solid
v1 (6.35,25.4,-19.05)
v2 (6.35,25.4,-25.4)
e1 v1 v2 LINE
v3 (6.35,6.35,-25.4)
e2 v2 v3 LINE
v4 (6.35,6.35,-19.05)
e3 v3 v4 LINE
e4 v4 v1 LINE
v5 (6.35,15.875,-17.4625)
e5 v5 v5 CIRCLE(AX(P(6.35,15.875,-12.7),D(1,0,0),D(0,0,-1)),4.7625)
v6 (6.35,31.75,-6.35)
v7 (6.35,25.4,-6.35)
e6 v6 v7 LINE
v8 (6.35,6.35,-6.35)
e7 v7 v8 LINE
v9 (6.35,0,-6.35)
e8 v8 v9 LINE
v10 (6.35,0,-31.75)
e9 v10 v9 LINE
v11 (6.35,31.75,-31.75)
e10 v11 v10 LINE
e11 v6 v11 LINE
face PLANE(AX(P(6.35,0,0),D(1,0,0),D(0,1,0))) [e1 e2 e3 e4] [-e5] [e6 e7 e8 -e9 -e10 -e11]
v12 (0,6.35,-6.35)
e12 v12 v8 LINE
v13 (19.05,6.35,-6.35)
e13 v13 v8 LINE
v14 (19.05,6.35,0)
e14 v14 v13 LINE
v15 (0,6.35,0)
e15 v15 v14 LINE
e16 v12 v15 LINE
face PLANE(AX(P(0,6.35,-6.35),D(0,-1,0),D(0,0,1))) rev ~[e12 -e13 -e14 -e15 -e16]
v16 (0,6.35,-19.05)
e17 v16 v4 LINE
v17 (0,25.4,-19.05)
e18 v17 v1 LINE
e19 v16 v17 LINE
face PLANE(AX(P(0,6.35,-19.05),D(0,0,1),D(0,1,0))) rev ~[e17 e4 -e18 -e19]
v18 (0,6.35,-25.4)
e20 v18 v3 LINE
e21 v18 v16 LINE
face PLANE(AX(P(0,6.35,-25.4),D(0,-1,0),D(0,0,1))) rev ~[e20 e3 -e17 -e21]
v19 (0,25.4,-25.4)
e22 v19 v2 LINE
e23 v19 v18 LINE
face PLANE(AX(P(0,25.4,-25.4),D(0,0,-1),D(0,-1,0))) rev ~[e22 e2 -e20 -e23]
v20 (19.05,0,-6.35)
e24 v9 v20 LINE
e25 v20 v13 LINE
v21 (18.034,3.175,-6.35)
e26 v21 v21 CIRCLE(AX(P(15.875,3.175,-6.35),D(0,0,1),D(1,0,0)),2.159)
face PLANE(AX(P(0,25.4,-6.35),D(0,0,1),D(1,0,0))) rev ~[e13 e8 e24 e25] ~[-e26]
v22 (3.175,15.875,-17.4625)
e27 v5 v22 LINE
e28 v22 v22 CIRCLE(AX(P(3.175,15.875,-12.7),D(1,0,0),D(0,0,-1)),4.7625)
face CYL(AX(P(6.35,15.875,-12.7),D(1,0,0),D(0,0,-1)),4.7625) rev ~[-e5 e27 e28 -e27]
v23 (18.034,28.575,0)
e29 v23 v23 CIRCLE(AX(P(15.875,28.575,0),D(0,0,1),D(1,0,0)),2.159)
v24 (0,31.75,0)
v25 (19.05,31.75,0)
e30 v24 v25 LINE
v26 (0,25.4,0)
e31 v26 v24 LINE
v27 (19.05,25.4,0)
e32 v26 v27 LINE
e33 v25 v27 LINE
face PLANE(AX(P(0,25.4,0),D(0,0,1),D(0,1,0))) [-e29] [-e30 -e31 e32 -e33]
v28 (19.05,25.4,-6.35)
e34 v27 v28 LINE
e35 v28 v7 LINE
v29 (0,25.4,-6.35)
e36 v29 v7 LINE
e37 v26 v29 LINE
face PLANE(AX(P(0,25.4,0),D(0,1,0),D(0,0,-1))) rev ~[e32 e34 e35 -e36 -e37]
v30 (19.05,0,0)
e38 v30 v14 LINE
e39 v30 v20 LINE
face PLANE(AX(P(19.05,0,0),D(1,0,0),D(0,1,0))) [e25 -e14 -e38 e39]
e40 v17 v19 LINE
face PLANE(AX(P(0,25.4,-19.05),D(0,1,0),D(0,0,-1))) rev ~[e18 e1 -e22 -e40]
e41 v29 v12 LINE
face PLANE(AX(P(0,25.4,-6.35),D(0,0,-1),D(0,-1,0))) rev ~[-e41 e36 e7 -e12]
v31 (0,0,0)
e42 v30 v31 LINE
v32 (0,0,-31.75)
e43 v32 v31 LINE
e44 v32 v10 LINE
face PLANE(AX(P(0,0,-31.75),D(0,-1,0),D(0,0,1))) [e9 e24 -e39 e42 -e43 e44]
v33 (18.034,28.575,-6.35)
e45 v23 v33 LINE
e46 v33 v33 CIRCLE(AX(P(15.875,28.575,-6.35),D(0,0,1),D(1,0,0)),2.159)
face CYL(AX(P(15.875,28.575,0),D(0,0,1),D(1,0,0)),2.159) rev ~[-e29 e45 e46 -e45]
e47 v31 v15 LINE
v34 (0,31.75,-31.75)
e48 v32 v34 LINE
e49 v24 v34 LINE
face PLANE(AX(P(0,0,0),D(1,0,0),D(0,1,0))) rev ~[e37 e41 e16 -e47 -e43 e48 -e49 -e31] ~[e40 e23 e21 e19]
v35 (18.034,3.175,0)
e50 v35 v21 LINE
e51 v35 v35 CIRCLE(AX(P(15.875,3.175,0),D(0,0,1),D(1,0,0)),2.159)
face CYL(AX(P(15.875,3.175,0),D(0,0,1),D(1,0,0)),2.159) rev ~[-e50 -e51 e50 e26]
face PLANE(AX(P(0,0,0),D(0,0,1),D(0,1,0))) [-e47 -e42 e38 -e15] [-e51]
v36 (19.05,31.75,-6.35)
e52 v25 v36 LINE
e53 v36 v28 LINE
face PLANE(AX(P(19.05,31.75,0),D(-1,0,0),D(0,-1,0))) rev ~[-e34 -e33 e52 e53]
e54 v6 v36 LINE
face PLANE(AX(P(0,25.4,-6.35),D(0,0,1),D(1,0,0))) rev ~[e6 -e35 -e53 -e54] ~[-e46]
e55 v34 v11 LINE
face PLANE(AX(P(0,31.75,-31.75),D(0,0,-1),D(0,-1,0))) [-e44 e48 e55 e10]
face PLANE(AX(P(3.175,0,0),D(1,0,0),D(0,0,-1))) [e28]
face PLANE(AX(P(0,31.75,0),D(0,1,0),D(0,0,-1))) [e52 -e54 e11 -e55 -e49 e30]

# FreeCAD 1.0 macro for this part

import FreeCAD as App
import Part
import Sketcher

V = App.Vector
Q = App.Units.Quantity

doc = App.newDocument("Part")
body = doc.addObject("PartDesign::Body", "Body")

# Sketch on YZ plane
sketch1 = body.newObject("Sketcher::SketchObject", "Sketch")
sketch1.AttachmentSupport = (doc.getObject("YZ_Plane"), [""])
sketch1.MapMode = "FlatFace"
sketch1.addGeometry([
    Part.LineSegment(V(32, -32, 0), V(32, 0, 0)),  # 0
    Part.LineSegment(V(32, 0, 0), V(25, 0, 0)),  # 1
    Part.LineSegment(V(25, 0, 0), V(25, -6, 0)),  # 2
    Part.LineSegment(V(25, -6, 0), V(6, -6, 0)),  # 3
    Part.LineSegment(V(6, -6, 0), V(6, 0, 0)),  # 4
    Part.LineSegment(V(6, 0, 0), V(0, 0, 0)),  # 5
    Part.LineSegment(V(0, 0, 0), V(0, -32, 0)),  # 6
    Part.LineSegment(V(0, -32, 0), V(32, -32, 0)),  # 7
    Part.LineSegment(V(6, -25, 0), V(6, -19, 0)),  # 8
    Part.LineSegment(V(6, -19, 0), V(25, -19, 0)),  # 9
    Part.LineSegment(V(25, -19, 0), V(25, -25, 0)),  # 10
    Part.LineSegment(V(25, -25, 0), V(6, -25, 0)),  # 11
], False)
sketch1.addConstraint([
    Sketcher.Constraint("Coincident", 0, 2, 1, 1),
    Sketcher.Constraint("Coincident", 1, 2, 2, 1),
    Sketcher.Constraint("Coincident", 2, 2, 3, 1),
    Sketcher.Constraint("Coincident", 3, 2, 4, 1),
    Sketcher.Constraint("Coincident", 4, 2, 5, 1),
    Sketcher.Constraint("Coincident", 5, 2, 6, 1),
    Sketcher.Constraint("Coincident", 6, 2, 7, 1),
    Sketcher.Constraint("Coincident", 7, 2, 0, 1),
    Sketcher.Constraint("Coincident", 8, 2, 9, 1),
    Sketcher.Constraint("Coincident", 9, 2, 10, 1),
    Sketcher.Constraint("Coincident", 10, 2, 11, 1),
    Sketcher.Constraint("Coincident", 11, 2, 8, 1),
    Sketcher.Constraint("Vertical", 0),
    Sketcher.Constraint("Horizontal", 1),
    Sketcher.Constraint("Vertical", 2),
    Sketcher.Constraint("Horizontal", 3),
    Sketcher.Constraint("Vertical", 4),
    Sketcher.Constraint("Horizontal", 5),
    Sketcher.Constraint("Vertical", 6),
    Sketcher.Constraint("Horizontal", 7),
    Sketcher.Constraint("Vertical", 8),
    Sketcher.Constraint("Horizontal", 9),
    Sketcher.Constraint("Vertical", 10),
    Sketcher.Constraint("Horizontal", 11),
    Sketcher.Constraint("Coincident", 5, 2, -1, 1),
    Sketcher.Constraint("PointOnObject", 0, 2, -1),
    Sketcher.Constraint("Vertical", 4, 2, 8, 2),
    Sketcher.Constraint("Vertical", 2, 2, 9, 2),
    Sketcher.Constraint("Equal", 1, 5),
    Sketcher.Constraint("Equal", 7, 0),
    Sketcher.Constraint("Equal", 5, 2),
    Sketcher.Constraint("Equal", 4, 8),
    Sketcher.Constraint("DistanceX", 1, 2, 1, 1, Q("0.25 in")),
    Sketcher.Constraint("DistanceX", 3, 2, 3, 1, Q("0.75 in")),
    Sketcher.Constraint("DistanceY", 8, 2, -1, 1, Q("0.75 in")),
])
pad1 = body.newObject("PartDesign::Pad", "Pad")
pad1.Profile = sketch1
pad1.Length = Q("0.25 in")

# Sketch on YZ plane
sketch2 = body.newObject("Sketcher::SketchObject", "Sketch001")
sketch2.AttachmentSupport = (doc.getObject("YZ_Plane"), [""])
sketch2.MapMode = "FlatFace"
sketch2.AttachmentOffset = App.Placement(V(0, 0, 0.25 * 25.4), App.Rotation())
sketch2.addGeometry(Part.Circle(V(15.9, -12.7, 0), V(0, 0, 1), 4.8), False)
sketch2.addConstraint([
    Sketcher.Constraint("Diameter", 0, Q("0.375 in")),
    Sketcher.Constraint("DistanceX", -1, 1, 0, 3, Q("0.625 in")),
    Sketcher.Constraint("DistanceY", 0, 3, -1, 1, Q("0.5 in")),
])
pocket1 = body.newObject("PartDesign::Pocket", "Pocket")
pocket1.Profile = sketch2
pocket1.Length = Q("0.125 in")

# Sketch on XY plane
sketch3 = body.newObject("Sketcher::SketchObject", "Sketch002")
sketch3.AttachmentSupport = (doc.getObject("XY_Plane"), [""])
sketch3.MapMode = "FlatFace"
sketch3.addGeometry([
    Part.LineSegment(V(19.1, 31.8, 0), V(6.3, 31.8, 0)),  # 0
    Part.LineSegment(V(6.3, 31.8, 0), V(6.3, 25.4, 0)),  # 1
    Part.LineSegment(V(6.3, 25.4, 0), V(19.1, 25.4, 0)),  # 2
    Part.LineSegment(V(19.1, 25.4, 0), V(19.1, 31.8, 0)),  # 3
    Part.Circle(V(15.9, 28.6, 0), V(0, 0, 1), 2.2),  # 4
    Part.LineSegment(V(19.1, 6.3, 0), V(6.3, 6.3, 0)),  # 5
    Part.LineSegment(V(6.3, 6.3, 0), V(6.3, 0, 0)),  # 6
    Part.LineSegment(V(6.3, 0, 0), V(19.1, 0, 0)),  # 7
    Part.LineSegment(V(19.1, 0, 0), V(19.1, 6.3, 0)),  # 8
    Part.Circle(V(15.9, 3.2, 0), V(0, 0, 1), 2.2),  # 9
], False)
sketch3.addConstraint([
    Sketcher.Constraint("Coincident", 0, 2, 1, 1),
    Sketcher.Constraint("Coincident", 1, 2, 2, 1),
    Sketcher.Constraint("Coincident", 2, 2, 3, 1),
    Sketcher.Constraint("Coincident", 3, 2, 0, 1),
    Sketcher.Constraint("Coincident", 5, 2, 6, 1),
    Sketcher.Constraint("Coincident", 6, 2, 7, 1),
    Sketcher.Constraint("Coincident", 7, 2, 8, 1),
    Sketcher.Constraint("Coincident", 8, 2, 5, 1),
    Sketcher.Constraint("Horizontal", 0),
    Sketcher.Constraint("Vertical", 1),
    Sketcher.Constraint("Horizontal", 2),
    Sketcher.Constraint("Vertical", 3),
    Sketcher.Constraint("Horizontal", 5),
    Sketcher.Constraint("Vertical", 6),
    Sketcher.Constraint("Horizontal", 7),
    Sketcher.Constraint("Vertical", 8),
    Sketcher.Constraint("Equal", 4, 9),
    Sketcher.Constraint("PointOnObject", 6, 2, -1),
    Sketcher.Constraint("Vertical", 4, 3, 9, 3),
    Sketcher.Constraint("Vertical", 1, 2, 5, 2),
    Sketcher.Constraint("Vertical", 3, 2, 7, 2),
    Sketcher.Constraint("Equal", 3, 6),
    Sketcher.Constraint("Diameter", 4, Q("0.17 in")),
    Sketcher.Constraint("DistanceX", -1, 1, 2, 2, Q("0.75 in")),
    Sketcher.Constraint("DistanceY", 5, 2, 1, 2, Q("0.75 in")),
    Sketcher.Constraint("DistanceX", 0, 2, 0, 1, Q("0.5 in")),
    Sketcher.Constraint("DistanceY", -1, 1, 9, 3, Q("0.125 in")),
    Sketcher.Constraint("DistanceY", -1, 1, 1, 2, Q("1 in")),
    Sketcher.Constraint("DistanceY", 9, 3, 4, 3, Q("1 in")),
    Sketcher.Constraint("DistanceX", 4, 3, 2, 2, Q("0.125 in")),
])
pad2 = body.newObject("PartDesign::Pad", "Pad001")
pad2.Profile = sketch3
pad2.Length = Q("0.25 in")
pad2.Reversed = True

doc.recompute()
